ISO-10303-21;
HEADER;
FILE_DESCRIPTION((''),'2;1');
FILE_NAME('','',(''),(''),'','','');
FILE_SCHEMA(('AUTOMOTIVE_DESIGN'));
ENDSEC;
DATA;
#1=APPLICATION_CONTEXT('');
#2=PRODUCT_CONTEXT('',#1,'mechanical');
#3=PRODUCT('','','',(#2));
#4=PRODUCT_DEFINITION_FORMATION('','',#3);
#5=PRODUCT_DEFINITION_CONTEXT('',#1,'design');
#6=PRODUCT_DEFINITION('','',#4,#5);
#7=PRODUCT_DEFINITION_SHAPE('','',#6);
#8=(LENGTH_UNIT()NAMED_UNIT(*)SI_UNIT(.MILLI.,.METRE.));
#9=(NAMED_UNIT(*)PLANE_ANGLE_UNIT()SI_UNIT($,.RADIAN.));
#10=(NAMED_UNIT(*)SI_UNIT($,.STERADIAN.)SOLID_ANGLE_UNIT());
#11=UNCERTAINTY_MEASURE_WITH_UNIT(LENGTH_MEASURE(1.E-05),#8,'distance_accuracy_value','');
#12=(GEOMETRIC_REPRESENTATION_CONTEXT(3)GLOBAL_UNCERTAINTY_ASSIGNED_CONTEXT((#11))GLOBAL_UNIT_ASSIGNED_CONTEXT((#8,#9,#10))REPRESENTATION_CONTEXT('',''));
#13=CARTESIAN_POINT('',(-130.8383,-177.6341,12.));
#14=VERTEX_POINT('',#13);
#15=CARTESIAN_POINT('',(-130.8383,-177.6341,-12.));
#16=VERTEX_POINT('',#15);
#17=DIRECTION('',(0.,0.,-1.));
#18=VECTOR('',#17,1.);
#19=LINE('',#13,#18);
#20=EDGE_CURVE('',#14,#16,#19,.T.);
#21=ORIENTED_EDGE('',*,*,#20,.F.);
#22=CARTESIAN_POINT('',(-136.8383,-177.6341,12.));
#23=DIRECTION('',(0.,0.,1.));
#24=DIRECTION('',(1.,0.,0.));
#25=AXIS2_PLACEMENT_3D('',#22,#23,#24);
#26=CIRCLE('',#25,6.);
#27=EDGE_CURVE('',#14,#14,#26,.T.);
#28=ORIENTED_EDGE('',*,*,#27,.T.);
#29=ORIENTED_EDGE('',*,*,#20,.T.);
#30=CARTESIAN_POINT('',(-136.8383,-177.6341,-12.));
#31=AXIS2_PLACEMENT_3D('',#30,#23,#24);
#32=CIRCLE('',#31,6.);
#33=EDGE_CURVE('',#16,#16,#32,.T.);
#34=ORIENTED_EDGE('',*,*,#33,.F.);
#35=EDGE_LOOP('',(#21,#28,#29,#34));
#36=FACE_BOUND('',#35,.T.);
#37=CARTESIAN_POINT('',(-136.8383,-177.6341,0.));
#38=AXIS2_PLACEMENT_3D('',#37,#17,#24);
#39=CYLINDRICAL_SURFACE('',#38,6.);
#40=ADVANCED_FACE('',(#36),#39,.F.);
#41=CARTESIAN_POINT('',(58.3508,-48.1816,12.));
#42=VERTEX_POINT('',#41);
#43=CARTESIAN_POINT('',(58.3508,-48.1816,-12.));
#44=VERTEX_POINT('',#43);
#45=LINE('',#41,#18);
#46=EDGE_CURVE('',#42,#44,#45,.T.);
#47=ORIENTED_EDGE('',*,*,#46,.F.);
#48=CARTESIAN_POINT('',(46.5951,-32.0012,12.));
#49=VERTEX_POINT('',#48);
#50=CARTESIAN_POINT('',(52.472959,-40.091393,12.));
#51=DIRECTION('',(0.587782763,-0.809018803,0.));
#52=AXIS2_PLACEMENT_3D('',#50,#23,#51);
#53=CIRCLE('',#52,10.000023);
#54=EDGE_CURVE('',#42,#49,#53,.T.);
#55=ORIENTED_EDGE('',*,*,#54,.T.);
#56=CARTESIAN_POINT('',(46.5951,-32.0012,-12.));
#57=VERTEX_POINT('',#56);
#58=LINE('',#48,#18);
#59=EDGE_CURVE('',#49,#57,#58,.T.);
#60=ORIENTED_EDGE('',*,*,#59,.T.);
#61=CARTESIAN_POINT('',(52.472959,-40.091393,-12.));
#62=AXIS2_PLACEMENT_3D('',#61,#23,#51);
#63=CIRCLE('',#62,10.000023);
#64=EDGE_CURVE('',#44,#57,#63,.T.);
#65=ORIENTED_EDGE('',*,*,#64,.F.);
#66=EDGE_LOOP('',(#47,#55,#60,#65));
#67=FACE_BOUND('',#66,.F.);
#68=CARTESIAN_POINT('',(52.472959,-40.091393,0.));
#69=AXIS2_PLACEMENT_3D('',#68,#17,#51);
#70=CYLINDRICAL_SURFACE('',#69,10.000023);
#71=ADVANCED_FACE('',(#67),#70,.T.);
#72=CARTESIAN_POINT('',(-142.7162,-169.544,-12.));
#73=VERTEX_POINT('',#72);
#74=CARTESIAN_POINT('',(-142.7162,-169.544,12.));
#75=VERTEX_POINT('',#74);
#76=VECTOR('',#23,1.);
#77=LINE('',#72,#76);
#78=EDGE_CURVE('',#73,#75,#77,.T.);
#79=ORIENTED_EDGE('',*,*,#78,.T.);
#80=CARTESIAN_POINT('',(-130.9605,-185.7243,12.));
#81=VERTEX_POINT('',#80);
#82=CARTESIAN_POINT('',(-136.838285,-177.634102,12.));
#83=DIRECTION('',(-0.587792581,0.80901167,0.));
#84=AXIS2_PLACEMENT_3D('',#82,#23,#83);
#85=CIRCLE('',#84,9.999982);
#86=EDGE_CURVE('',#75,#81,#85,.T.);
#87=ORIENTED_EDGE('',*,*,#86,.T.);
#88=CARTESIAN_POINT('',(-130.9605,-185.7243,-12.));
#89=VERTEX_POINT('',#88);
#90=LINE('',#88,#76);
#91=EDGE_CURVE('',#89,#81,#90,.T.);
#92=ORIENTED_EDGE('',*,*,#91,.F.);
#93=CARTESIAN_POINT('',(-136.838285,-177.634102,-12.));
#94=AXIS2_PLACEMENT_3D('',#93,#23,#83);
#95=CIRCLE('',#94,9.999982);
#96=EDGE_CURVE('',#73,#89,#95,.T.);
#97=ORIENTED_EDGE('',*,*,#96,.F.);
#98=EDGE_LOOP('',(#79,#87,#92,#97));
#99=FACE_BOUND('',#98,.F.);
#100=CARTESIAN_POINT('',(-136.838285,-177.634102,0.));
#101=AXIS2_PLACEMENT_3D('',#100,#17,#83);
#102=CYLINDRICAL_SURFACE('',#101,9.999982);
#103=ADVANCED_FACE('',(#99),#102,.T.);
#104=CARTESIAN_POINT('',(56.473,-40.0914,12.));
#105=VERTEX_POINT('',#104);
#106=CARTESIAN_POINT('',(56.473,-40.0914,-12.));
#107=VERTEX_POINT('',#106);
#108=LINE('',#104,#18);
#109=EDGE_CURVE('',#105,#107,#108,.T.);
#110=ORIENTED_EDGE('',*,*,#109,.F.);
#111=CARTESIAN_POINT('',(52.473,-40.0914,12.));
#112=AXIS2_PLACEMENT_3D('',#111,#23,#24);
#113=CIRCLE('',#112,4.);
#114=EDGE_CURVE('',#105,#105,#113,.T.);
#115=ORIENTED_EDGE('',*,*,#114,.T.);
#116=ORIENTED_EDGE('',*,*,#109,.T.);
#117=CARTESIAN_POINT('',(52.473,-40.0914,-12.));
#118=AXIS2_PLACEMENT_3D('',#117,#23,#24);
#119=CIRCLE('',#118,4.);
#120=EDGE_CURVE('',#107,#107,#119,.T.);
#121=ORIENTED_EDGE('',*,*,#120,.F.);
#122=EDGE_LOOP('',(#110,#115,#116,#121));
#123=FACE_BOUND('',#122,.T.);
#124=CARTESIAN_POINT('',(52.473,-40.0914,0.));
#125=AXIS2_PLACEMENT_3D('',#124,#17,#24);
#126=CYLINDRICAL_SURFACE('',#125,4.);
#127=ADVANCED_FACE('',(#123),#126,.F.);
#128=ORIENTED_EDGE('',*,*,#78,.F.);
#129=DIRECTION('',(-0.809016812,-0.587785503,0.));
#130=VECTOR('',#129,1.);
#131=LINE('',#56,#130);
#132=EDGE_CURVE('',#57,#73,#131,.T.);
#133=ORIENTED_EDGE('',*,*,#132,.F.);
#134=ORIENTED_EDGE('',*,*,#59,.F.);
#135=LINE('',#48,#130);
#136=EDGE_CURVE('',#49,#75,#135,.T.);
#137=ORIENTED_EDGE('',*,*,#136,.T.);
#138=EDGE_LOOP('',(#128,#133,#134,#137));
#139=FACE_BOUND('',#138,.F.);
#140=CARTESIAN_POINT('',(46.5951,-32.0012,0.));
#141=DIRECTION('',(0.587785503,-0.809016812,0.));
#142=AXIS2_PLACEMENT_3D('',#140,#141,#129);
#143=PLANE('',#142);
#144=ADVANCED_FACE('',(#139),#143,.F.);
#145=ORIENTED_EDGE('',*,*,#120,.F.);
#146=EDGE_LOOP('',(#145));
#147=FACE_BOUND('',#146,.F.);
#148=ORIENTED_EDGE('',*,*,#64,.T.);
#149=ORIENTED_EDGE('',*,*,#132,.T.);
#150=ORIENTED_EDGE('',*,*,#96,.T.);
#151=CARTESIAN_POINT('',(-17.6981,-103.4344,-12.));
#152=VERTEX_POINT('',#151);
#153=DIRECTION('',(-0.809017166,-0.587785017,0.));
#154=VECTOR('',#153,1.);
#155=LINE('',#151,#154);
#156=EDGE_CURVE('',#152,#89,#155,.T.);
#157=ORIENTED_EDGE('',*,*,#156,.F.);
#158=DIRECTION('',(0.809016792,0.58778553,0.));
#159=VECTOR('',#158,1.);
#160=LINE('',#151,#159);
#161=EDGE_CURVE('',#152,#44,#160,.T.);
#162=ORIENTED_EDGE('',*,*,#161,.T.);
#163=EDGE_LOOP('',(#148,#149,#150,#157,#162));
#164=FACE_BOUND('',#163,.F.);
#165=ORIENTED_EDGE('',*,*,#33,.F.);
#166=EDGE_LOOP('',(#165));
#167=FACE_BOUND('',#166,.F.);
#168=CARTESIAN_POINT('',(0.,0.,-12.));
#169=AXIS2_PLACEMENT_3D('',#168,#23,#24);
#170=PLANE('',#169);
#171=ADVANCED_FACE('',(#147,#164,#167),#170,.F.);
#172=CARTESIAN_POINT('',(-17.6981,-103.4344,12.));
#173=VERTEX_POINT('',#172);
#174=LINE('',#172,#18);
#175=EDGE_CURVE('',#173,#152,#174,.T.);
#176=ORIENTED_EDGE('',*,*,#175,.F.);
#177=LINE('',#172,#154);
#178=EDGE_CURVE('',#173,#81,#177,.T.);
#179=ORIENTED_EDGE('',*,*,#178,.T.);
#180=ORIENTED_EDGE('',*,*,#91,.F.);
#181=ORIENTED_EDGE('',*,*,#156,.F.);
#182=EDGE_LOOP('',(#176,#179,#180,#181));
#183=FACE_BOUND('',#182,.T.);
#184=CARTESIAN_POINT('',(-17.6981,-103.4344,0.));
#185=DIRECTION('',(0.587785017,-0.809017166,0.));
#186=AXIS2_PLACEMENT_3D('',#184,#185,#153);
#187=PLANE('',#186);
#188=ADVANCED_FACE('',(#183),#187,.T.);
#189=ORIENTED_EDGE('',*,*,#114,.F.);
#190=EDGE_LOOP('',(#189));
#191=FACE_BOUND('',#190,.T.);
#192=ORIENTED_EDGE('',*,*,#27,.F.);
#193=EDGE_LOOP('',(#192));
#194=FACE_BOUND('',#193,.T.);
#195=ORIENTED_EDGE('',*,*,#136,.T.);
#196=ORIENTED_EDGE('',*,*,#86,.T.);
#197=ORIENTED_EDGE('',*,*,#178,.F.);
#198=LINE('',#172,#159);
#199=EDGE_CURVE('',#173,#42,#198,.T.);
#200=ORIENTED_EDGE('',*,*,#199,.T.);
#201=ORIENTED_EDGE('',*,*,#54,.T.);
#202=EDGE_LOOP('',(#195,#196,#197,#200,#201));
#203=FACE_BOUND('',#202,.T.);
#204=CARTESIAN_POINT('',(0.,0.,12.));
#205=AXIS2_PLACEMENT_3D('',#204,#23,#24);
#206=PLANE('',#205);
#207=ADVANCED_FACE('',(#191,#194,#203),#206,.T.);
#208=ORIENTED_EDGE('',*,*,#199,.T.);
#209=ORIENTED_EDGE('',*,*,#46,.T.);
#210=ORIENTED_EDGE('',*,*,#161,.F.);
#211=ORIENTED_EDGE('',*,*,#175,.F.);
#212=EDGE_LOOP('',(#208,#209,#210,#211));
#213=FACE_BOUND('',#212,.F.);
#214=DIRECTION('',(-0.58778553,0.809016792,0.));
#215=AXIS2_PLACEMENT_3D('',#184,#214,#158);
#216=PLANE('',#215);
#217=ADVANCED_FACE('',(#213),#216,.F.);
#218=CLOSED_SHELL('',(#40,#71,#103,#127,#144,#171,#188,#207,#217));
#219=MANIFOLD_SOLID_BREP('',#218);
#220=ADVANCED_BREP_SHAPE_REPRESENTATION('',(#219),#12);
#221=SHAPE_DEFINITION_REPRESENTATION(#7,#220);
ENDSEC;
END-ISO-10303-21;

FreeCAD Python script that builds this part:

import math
import FreeCAD as App
import Part
import Sketcher
Q = App.Units.Quantity

doc = App.newDocument("Part")
body = doc.addObject("PartDesign::Body", "Body")

# Sketch on XY plane
sketch1 = body.newObject("Sketcher::SketchObject", "Sketch")
sketch1.AttachmentSupport = (doc.getObject("XY_Plane"), [""])
sketch1.MapMode = "FlatFace"
sketch1.addGeometry(Part.LineSegment(App.Vector(46.5951, -32.0012, 0), App.Vector(-142.7162, -169.544, 0)), False)
sketch1.addGeometry(Part.ArcOfCircle(Part.Circle(App.Vector(-136.8383, -177.6341, 0), App.Vector(0, 0, 1), 9.999971), math.radians(126.000456), math.radians(305.999655)), False)
sketch1.addGeometry(Part.LineSegment(App.Vector(-130.9605, -185.7243, 0), App.Vector(-17.6981, -103.4344, 0)), False)
sketch1.addGeometry(Part.LineSegment(App.Vector(-17.6981, -103.4344, 0), App.Vector(58.3508, -48.1816, 0)), False)
sketch1.addGeometry(Part.ArcOfCircle(Part.Circle(App.Vector(52.473, -40.0914, 0), App.Vector(0, 0, 1), 9.999993), math.radians(-54.000345), math.radians(126.000119)), False)
sketch1.addGeometry(Part.Circle(App.Vector(-136.8383, -177.6341, 0), App.Vector(0, 0, 1), 6), False)
sketch1.addGeometry(Part.Circle(App.Vector(52.473, -40.0914, 0), App.Vector(0, 0, 1), 4), False)
sketch1.addConstraint(Sketcher.Constraint("Tangent", 0, 2, 1, 1))
sketch1.addConstraint(Sketcher.Constraint("Tangent", 1, 2, 2, 1))
sketch1.addConstraint(Sketcher.Constraint("Coincident", 2, 2, 3, 1))
sketch1.addConstraint(Sketcher.Constraint("Tangent", 3, 2, 4, 1))
sketch1.addConstraint(Sketcher.Constraint("Tangent", 4, 2, 0, 1))
sketch1.addConstraint(Sketcher.Constraint("Coincident", 5, 3, 1, 3))
sketch1.addConstraint(Sketcher.Constraint("Coincident", 6, 3, 4, 3))
sketch1.addConstraint(Sketcher.Constraint("Equal", 1, 4))
sketch1.addConstraint(Sketcher.Constraint("Parallel", 0, 2))
sketch1.addConstraint(Sketcher.Constraint("Diameter", 5, Q("12 mm")))
sketch1.addConstraint(Sketcher.Constraint("Diameter", 6, Q("8 mm")))
sketch1.addConstraint(Sketcher.Constraint("Radius", 1, Q("10 mm")))
sketch1.addConstraint(Sketcher.Constraint("Angle", 0, Q("-144 deg")))
sketch1.addConstraint(Sketcher.Constraint("Distance", 2, Q("140 mm")))
sketch1.addConstraint(Sketcher.Constraint("DistanceY", 1, 3, -1, 1, Q("177.634 mm")))
sketch1.addConstraint(Sketcher.Constraint("DistanceX", -1, 1, 4, 3, Q("52.473 mm")))
sketch1.addConstraint(Sketcher.Constraint("DistanceX", 2, 2, -1, 1, Q("17.698 mm")))
pad1 = body.newObject("PartDesign::Pad", "Pad")
pad1.Profile = sketch1
pad1.Length = 24
pad1.Midplane = True

doc.recompute()
